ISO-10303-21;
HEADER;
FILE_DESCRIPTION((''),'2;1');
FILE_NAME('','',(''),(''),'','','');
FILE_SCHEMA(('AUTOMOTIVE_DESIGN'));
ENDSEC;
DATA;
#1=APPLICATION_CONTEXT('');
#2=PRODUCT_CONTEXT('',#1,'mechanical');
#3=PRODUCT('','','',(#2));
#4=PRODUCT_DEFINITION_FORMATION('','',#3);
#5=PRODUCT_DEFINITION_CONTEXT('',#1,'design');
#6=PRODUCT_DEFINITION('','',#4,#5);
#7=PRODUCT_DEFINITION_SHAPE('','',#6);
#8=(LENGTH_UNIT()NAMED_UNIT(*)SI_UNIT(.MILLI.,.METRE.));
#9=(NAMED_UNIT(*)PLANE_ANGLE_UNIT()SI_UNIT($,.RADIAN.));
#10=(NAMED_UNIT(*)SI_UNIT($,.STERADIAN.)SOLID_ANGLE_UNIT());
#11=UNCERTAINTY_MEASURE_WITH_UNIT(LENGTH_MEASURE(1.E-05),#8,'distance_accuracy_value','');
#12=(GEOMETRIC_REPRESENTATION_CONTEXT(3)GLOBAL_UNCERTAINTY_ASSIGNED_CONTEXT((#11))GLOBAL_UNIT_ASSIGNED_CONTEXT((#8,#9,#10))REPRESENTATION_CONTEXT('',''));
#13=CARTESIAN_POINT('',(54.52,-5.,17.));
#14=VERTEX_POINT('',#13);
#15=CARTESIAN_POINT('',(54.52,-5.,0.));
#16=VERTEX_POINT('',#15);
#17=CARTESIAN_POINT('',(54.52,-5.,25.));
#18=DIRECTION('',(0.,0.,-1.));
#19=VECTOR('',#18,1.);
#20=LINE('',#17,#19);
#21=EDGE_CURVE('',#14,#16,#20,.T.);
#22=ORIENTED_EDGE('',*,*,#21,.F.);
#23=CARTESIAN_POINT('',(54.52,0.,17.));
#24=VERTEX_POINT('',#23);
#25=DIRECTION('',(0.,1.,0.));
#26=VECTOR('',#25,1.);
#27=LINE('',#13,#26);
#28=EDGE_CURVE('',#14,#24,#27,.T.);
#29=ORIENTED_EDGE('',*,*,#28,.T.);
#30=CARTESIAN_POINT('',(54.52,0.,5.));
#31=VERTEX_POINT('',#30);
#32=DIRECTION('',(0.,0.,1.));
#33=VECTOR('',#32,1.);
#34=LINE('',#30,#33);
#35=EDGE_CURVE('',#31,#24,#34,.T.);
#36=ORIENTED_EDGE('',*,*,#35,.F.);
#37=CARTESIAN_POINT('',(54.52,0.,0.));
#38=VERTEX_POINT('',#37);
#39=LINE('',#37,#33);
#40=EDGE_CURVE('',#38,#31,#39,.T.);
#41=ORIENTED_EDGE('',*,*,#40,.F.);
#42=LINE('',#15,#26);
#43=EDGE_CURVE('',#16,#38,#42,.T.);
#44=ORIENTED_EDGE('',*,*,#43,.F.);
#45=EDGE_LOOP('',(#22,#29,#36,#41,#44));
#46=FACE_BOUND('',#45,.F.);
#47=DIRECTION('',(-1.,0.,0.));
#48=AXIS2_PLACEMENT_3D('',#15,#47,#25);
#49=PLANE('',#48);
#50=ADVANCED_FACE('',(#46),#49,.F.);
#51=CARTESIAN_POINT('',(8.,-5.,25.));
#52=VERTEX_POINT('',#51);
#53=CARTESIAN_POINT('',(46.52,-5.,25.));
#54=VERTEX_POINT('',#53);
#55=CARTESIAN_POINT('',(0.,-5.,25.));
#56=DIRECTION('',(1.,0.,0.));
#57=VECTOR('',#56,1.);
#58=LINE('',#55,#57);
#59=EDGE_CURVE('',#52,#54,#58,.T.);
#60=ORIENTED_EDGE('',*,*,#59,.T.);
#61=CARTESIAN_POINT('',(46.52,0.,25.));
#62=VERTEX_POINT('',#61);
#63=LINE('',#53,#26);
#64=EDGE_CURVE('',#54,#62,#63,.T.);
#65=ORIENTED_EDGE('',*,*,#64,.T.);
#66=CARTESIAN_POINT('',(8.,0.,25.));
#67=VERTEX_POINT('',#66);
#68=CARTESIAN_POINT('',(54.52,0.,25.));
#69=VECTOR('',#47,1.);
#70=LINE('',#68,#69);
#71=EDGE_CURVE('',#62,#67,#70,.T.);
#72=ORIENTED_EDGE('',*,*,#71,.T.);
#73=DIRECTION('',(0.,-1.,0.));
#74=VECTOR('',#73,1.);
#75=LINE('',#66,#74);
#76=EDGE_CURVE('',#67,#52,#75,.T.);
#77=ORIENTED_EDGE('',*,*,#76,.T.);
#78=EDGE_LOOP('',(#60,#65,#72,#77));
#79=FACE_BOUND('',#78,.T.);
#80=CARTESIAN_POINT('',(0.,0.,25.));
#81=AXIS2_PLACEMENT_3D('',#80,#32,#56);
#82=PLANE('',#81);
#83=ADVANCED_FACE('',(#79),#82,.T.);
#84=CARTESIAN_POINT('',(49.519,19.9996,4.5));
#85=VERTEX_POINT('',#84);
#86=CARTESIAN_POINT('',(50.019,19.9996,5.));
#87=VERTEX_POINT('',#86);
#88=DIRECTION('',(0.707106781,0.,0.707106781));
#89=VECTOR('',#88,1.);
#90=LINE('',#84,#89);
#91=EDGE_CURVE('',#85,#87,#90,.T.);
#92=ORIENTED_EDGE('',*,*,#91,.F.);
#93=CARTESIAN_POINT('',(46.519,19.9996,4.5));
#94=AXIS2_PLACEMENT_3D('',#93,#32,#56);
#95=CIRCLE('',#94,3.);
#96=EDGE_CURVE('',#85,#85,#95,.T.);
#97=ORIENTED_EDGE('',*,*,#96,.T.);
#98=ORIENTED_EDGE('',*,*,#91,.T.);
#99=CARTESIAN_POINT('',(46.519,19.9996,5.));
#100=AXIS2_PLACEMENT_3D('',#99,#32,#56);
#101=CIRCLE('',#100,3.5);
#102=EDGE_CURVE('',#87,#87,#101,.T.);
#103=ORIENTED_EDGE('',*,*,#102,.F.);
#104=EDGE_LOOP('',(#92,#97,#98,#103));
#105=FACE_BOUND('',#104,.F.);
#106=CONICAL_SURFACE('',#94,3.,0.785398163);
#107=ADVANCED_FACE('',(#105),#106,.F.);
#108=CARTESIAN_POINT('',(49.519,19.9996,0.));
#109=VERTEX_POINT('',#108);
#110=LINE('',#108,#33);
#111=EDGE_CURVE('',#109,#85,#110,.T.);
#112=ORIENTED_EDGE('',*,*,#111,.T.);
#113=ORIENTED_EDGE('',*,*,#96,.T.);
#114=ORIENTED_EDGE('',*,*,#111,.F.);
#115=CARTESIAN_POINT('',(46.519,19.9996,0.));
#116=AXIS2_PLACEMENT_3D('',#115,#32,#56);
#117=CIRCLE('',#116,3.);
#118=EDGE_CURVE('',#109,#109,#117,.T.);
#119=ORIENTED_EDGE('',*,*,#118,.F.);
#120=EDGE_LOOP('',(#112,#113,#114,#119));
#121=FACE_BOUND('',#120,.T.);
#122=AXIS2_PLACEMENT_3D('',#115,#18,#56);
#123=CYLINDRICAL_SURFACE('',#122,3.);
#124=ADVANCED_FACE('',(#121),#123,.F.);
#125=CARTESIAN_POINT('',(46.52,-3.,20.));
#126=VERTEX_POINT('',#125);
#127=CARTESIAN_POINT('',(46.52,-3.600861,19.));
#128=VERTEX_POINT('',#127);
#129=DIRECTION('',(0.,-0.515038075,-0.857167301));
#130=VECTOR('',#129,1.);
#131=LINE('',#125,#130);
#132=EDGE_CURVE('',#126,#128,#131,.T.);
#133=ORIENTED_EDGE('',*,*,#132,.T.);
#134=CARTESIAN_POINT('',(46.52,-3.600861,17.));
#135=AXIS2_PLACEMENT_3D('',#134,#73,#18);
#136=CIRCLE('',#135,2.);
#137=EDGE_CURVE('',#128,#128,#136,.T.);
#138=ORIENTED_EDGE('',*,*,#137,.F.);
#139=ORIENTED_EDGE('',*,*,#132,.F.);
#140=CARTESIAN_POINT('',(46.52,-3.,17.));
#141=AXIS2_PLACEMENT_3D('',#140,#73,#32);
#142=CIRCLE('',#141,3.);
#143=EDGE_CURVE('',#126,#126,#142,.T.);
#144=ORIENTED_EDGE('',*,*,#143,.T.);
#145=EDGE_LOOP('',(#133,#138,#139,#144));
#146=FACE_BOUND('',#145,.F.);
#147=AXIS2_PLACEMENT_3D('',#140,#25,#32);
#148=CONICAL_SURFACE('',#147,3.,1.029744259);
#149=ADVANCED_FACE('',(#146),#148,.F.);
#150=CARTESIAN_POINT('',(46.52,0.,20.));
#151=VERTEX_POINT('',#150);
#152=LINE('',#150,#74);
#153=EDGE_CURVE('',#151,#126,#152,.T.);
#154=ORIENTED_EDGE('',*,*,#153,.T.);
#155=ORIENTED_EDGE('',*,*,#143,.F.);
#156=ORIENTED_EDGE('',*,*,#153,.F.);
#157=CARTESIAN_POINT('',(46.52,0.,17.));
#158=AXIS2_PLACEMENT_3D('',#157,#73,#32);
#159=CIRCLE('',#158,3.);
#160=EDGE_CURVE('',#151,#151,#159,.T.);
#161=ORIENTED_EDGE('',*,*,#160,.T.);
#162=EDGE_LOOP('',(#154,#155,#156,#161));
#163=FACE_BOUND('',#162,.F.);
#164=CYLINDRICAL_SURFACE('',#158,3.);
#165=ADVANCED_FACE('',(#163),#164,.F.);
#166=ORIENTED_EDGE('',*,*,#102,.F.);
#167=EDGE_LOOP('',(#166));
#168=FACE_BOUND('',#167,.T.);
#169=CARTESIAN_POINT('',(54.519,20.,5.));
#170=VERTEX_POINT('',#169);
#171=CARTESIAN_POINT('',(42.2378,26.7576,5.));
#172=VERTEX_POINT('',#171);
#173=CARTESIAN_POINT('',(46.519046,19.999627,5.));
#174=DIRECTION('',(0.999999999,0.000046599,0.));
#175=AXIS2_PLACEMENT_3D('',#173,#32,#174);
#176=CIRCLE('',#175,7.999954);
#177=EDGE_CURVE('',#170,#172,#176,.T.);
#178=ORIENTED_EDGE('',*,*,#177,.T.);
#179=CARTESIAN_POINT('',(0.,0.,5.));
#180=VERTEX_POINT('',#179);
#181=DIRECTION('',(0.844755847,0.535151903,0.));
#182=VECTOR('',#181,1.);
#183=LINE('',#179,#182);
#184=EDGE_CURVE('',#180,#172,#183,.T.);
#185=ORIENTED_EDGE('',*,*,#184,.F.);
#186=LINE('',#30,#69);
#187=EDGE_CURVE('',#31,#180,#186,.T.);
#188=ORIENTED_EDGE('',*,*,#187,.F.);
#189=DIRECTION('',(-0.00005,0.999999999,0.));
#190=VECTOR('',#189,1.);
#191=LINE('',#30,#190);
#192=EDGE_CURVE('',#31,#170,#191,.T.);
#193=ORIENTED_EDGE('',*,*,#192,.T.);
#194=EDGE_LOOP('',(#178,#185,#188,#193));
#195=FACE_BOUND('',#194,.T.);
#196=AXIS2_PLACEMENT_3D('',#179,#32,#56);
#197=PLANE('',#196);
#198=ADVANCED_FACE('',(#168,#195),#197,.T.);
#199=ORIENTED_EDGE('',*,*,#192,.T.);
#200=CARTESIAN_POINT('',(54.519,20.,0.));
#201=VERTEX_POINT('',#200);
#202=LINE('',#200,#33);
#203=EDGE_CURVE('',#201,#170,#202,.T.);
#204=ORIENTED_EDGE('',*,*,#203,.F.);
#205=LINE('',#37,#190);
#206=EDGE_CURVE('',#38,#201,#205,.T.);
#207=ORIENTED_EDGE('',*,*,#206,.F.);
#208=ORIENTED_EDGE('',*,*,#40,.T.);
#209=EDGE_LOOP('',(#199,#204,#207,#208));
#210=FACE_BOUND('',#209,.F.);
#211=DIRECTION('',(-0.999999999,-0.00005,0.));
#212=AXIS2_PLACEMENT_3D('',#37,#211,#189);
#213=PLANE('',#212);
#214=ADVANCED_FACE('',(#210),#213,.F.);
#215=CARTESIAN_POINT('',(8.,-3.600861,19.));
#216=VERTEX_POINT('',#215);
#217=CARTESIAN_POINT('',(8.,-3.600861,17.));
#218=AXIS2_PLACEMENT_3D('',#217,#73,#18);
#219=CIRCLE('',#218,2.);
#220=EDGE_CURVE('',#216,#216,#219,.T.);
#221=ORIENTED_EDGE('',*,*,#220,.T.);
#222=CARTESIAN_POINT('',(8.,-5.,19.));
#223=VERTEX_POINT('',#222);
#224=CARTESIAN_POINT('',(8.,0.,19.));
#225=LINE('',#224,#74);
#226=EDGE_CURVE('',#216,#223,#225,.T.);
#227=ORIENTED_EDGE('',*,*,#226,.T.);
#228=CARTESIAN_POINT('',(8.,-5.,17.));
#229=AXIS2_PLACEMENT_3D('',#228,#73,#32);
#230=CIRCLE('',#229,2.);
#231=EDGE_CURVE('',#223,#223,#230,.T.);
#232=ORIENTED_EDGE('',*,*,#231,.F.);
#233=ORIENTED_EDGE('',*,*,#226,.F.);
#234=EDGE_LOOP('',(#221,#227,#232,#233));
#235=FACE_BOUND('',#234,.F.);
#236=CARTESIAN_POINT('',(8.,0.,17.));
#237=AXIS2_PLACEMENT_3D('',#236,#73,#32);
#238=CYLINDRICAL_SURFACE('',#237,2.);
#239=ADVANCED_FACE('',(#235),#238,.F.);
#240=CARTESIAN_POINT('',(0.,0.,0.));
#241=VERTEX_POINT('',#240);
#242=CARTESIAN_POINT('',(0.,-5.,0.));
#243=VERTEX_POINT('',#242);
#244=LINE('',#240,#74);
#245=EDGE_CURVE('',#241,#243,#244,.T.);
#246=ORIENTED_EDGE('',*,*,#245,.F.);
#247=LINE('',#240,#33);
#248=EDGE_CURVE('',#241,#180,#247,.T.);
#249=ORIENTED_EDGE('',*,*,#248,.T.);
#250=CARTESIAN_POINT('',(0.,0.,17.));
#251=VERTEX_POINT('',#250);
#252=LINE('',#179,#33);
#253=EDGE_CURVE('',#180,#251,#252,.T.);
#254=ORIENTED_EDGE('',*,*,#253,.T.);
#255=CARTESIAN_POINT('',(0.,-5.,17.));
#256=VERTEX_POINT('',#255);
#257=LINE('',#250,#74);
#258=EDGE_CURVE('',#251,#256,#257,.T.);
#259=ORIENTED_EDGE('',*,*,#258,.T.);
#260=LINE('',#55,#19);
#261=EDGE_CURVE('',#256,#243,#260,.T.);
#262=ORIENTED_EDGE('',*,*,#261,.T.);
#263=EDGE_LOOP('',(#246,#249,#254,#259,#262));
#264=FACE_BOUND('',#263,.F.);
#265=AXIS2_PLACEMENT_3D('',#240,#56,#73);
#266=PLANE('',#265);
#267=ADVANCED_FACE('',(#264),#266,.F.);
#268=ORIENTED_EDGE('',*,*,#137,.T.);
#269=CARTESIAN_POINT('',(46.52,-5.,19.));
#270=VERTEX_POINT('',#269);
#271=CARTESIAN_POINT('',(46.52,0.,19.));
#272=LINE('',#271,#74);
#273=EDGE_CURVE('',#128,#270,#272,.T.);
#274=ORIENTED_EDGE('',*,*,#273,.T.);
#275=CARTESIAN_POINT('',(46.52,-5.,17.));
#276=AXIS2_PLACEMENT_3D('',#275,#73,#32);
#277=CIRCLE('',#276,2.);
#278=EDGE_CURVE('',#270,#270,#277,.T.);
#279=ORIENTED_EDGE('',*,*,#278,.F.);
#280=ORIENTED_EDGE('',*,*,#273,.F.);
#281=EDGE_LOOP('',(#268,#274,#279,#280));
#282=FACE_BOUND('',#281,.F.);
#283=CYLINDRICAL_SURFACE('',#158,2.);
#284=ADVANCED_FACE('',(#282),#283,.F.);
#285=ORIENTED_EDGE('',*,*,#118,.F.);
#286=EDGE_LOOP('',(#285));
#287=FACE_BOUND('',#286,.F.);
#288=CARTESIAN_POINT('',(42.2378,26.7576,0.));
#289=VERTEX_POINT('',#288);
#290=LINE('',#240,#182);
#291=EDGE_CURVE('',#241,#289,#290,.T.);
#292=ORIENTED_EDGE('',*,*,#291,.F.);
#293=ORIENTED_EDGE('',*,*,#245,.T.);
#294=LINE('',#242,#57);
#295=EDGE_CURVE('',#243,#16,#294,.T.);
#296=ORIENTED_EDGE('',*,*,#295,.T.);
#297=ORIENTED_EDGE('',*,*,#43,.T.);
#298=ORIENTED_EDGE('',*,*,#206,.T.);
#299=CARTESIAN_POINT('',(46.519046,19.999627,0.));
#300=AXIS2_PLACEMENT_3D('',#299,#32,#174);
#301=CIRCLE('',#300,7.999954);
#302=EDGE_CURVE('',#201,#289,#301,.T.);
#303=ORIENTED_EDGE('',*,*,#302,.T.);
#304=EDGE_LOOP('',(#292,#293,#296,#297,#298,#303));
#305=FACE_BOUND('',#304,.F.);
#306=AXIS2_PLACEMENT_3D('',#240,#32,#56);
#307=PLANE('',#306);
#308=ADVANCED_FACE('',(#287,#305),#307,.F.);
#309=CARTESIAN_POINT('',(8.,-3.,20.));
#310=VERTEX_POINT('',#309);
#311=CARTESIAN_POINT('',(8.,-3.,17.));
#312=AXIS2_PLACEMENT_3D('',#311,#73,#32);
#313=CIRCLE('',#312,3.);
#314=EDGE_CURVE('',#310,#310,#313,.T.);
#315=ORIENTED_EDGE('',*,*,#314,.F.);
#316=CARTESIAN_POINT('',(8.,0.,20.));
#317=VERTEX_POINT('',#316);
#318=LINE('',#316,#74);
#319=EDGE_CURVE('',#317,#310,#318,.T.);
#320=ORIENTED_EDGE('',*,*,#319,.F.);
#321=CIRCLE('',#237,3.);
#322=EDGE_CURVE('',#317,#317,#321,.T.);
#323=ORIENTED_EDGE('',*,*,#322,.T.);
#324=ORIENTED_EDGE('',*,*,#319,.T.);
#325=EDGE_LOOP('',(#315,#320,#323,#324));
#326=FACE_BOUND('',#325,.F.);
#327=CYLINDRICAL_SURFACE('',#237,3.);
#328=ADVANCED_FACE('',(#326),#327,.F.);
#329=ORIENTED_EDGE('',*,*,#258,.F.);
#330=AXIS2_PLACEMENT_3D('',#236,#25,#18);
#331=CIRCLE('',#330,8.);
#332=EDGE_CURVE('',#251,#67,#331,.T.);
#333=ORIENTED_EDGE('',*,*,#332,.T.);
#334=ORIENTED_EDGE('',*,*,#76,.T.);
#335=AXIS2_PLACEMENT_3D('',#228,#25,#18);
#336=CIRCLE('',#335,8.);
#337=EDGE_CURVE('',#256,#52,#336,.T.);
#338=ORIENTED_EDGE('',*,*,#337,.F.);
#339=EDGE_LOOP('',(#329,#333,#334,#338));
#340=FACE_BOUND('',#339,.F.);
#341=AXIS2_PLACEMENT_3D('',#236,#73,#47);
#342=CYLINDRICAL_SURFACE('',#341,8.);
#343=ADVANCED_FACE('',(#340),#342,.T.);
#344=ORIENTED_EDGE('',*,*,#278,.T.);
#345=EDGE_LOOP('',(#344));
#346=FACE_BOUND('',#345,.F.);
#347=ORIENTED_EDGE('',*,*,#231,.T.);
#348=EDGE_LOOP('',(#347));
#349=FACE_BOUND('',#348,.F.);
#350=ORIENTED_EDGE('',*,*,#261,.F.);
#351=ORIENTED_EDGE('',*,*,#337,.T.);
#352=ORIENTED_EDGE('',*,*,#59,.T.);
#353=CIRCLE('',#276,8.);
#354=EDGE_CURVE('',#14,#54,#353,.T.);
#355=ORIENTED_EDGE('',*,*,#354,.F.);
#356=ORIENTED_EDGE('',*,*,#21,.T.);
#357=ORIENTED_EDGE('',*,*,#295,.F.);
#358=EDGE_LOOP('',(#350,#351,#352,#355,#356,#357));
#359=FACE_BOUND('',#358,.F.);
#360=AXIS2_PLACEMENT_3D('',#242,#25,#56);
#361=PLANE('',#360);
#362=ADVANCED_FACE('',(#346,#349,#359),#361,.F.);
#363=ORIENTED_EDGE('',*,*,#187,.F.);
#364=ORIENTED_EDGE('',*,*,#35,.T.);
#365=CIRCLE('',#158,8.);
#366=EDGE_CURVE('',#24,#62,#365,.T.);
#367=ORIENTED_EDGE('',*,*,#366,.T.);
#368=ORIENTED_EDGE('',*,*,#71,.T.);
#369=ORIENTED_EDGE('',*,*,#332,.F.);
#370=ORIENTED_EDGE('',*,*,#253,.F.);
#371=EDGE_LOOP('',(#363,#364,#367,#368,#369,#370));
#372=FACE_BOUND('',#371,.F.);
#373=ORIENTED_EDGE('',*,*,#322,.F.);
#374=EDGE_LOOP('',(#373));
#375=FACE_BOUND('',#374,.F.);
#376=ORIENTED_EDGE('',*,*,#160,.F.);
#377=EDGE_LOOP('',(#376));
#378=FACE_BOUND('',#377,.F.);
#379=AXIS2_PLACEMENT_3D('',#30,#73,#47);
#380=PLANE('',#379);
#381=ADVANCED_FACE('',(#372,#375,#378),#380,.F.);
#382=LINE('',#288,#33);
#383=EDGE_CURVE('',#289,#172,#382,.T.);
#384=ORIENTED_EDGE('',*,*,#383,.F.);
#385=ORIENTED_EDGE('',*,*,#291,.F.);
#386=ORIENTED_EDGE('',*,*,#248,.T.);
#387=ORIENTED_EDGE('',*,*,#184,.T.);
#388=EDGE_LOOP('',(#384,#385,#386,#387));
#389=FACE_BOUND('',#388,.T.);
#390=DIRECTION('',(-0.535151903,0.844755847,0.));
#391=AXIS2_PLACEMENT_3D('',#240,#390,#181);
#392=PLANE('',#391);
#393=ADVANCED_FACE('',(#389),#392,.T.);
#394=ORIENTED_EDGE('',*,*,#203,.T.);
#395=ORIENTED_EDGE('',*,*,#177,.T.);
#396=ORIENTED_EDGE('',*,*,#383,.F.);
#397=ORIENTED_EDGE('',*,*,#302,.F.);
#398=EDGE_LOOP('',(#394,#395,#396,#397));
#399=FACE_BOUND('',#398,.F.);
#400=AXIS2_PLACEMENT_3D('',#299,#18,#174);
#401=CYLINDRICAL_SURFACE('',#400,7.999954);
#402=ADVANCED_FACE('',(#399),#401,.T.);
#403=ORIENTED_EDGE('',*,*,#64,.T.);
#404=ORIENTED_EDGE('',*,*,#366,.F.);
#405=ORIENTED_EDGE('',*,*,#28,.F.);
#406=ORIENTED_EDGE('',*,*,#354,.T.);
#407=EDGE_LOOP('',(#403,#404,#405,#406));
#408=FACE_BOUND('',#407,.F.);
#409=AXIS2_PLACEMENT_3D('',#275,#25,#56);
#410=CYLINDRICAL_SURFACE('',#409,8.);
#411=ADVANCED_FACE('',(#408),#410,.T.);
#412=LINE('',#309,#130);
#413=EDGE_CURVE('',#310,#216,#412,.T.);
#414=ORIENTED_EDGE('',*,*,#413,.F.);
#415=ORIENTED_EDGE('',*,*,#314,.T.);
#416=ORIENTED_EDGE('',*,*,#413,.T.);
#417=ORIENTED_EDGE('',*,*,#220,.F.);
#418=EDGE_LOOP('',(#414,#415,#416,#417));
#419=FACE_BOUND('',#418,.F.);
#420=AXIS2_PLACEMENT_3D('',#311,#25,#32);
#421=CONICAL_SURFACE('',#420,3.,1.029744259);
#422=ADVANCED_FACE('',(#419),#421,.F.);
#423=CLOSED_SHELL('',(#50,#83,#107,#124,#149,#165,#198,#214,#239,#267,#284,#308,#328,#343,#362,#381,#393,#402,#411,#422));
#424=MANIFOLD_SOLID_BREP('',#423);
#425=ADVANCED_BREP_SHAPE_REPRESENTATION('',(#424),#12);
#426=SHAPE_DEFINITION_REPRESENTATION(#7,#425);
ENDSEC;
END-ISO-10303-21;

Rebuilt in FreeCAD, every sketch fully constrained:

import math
import FreeCAD as App
import Part
import Sketcher


def edges_at(feature, points):
    """Names of the edges that pass closest to the given points."""
    edges = feature.Shape.Edges
    near = lambda p: min(range(len(edges)), key=lambda i: edges[i].distToShape(Part.Vertex(*p))[0])
    return sorted({f"Edge{near(p) + 1}" for p in points})


def add_polygon(sketch, points):
    """Adds a closed chain of lines whose ends are joined by coincident constraints."""
    first, n = sketch.GeometryCount, len(points)
    for a, b in zip(points, points[1:] + points[:1]):
        sketch.addGeometry(Part.LineSegment(App.Vector(*a, 0), App.Vector(*b, 0)), False)
    for i in range(n):
        sketch.addConstraint(Sketcher.Constraint("Coincident", first + i, 2, first + (i + 1) % n, 1))

doc = App.newDocument("Part")
body = doc.addObject("PartDesign::Body", "Body")

# Sketch on XY plane
sketch1 = doc.addObject("Sketcher::SketchObject", "Sketch")
body.addObject(sketch1)
sketch1.AttachmentSupport = (doc.XY_Plane, [""])
sketch1.MapMode = "FlatFace"
sketch1.addGeometry(Part.LineSegment(App.Vector(54.5, 0, 0), App.Vector(54.5, 20, 0)), False)
sketch1.addGeometry(Part.ArcOfCircle(Part.Circle(App.Vector(46.5, 20, 0), App.Vector(0, 0, 1), 8), math.radians(0), math.radians(122)), False)
sketch1.addGeometry(Part.LineSegment(App.Vector(42.2, 26.8, 0), App.Vector(0, 0, 0)), False)
sketch1.addGeometry(Part.LineSegment(App.Vector(0, 0, 0), App.Vector(0, -5, 0)), False)
sketch1.addGeometry(Part.LineSegment(App.Vector(0, -5, 0), App.Vector(54.5, -5, 0)), False)
sketch1.addGeometry(Part.LineSegment(App.Vector(54.5, -5, 0), App.Vector(54.5, 0, 0)), False)
sketch1.addGeometry(Part.Circle(App.Vector(46.5, 20, 0), App.Vector(0, 0, 1), 3), False)
sketch1.addConstraint(Sketcher.Constraint("Tangent", 0, 2, 1, 1))
sketch1.addConstraint(Sketcher.Constraint("Tangent", 1, 2, 2, 1))
sketch1.addConstraint(Sketcher.Constraint("Coincident", 2, 2, 3, 1))
sketch1.addConstraint(Sketcher.Constraint("Coincident", 3, 2, 4, 1))
sketch1.addConstraint(Sketcher.Constraint("Coincident", 4, 2, 5, 1))
sketch1.addConstraint(Sketcher.Constraint("Coincident", 5, 2, 0, 1))
sketch1.addConstraint(Sketcher.Constraint("Vertical", 3))
sketch1.addConstraint(Sketcher.Constraint("Horizontal", 4))
sketch1.addConstraint(Sketcher.Constraint("Vertical", 5))
sketch1.addConstraint(Sketcher.Constraint("Coincident", 2, 2, -1, 1))
sketch1.addConstraint(Sketcher.Constraint("Coincident", 6, 3, 1, 3))
sketch1.addConstraint(Sketcher.Constraint("PointOnObject", 5, 2, -1))
sketch1.addConstraint(Sketcher.Constraint("DistanceY", 3, 2, 3, 1, 5.0))
sketch1.addConstraint(Sketcher.Constraint("Distance", 0, 20.0))
sketch1.addConstraint(Sketcher.Constraint("Distance", 2, 50.0))
sketch1.addConstraint(Sketcher.Constraint("Diameter", 6, 6.0))
sketch1.addConstraint(Sketcher.Constraint("Radius", 1, 8.0))
sketch1.addConstraint(Sketcher.Constraint("DistanceX", 4, 1, 4, 2, 54.52))
pad1 = doc.addObject("PartDesign::Pad", "Pad")
body.addObject(pad1)
pad1.Profile = sketch1
pad1.Length = 5

# Sketch on XY plane
sketch2 = doc.addObject("Sketcher::SketchObject", "Sketch001")
body.addObject(sketch2)
sketch2.AttachmentSupport = (doc.XY_Plane, [""])
sketch2.MapMode = "FlatFace"
sketch2.AttachmentOffset = App.Placement(App.Vector(0, 0, 5), App.Rotation())
add_polygon(sketch2, [(55, 0), (0, 0), (0, -5), (55, -5)])  # lines 0-3
sketch2.addConstraint(Sketcher.Constraint("Horizontal", 0))
sketch2.addConstraint(Sketcher.Constraint("Vertical", 1))
sketch2.addConstraint(Sketcher.Constraint("Horizontal", 2))
sketch2.addConstraint(Sketcher.Constraint("Vertical", 3))
sketch2.addConstraint(Sketcher.Constraint("Coincident", 0, 2, -1, 1))
sketch2.addConstraint(Sketcher.Constraint("DistanceY", 1, 2, 1, 1, 5.0))
sketch2.addConstraint(Sketcher.Constraint("DistanceX", 0, 2, 0, 1, 54.52))
pad2 = doc.addObject("PartDesign::Pad", "Pad001")
body.addObject(pad2)
pad2.Profile = sketch2
pad2.Length = 20
doc.recompute()

fillet = doc.addObject("PartDesign::Fillet", "Fillet")
body.addObject(fillet)
fillet.Base = (pad2, edges_at(pad2, [(54.52, -2.5, 25), (0, -2.5, 25)]))
fillet.Radius = 8

# Sketch on XZ plane
sketch3 = doc.addObject("Sketcher::SketchObject", "Sketch002")
body.addObject(sketch3)
sketch3.AttachmentSupport = (doc.XZ_Plane, [""])
sketch3.MapMode = "FlatFace"
sketch3.addGeometry(Part.Circle(App.Vector(8, 17, 0), App.Vector(0, 0, 1), 3), False)
sketch3.addGeometry(Part.Circle(App.Vector(46.5, 17, 0), App.Vector(0, 0, 1), 3), False)
sketch3.addConstraint(Sketcher.Constraint("Equal", 0, 1))
sketch3.addConstraint(Sketcher.Constraint("Horizontal", 0, 3, 1, 3))
sketch3.addConstraint(Sketcher.Constraint("Diameter", 0, 6.0))
sketch3.addConstraint(Sketcher.Constraint("DistanceX", -1, 1, 0, 3, 8.0))
sketch3.addConstraint(Sketcher.Constraint("DistanceY", -1, 1, 0, 3, 17.0))
sketch3.addConstraint(Sketcher.Constraint("DistanceX", -1, 1, 1, 3, 46.52))
doc.recompute()
hole = doc.addObject("PartDesign::Hole", "Hole")
body.addObject(hole)
hole.Profile = sketch3
hole.ThreadType = "None"
hole.Diameter = 6
hole.DepthType = "Dimension"
hole.Depth = 3
hole.DrillPoint = "Angled"
hole.DrillPointAngle = 118
hole.Reversed = True

# Sketch on XZ plane
sketch4 = doc.addObject("Sketcher::SketchObject", "Sketch003")
body.addObject(sketch4)
sketch4.AttachmentSupport = (doc.XZ_Plane, [""])
sketch4.MapMode = "FlatFace"
sketch4.addGeometry(Part.Circle(App.Vector(46.5, 17, 0), App.Vector(0, 0, 1), 2), False)
sketch4.addGeometry(Part.Circle(App.Vector(8, 17, 0), App.Vector(0, 0, 1), 2), False)
sketch4.addConstraint(Sketcher.Constraint("Equal", 0, 1))
sketch4.addConstraint(Sketcher.Constraint("Horizontal", 0, 3, 1, 3))
sketch4.addConstraint(Sketcher.Constraint("Diameter", 0, 4.0))
sketch4.addConstraint(Sketcher.Constraint("DistanceY", -1, 1, 0, 3, 17.0))
sketch4.addConstraint(Sketcher.Constraint("DistanceX", -1, 1, 1, 3, 8.0))
sketch4.addConstraint(Sketcher.Constraint("DistanceX", -1, 1, 0, 3, 46.52))
doc.recompute()
hole2 = doc.addObject("PartDesign::Hole", "Hole001")
body.addObject(hole2)
hole2.Profile = sketch4
hole2.ThreadType = "None"
hole2.Diameter = 4
hole2.DepthType = "Dimension"
hole2.Depth = 5
hole2.DrillPoint = "Angled"
hole2.DrillPointAngle = 118
hole2.Reversed = True
doc.recompute()

chamfer = doc.addObject("PartDesign::Chamfer", "Chamfer")
body.addObject(chamfer)
chamfer.Base = (hole2, edges_at(hole2, [(43.519, 20, 5)]))
chamfer.Size = 0.5

doc.recompute()
